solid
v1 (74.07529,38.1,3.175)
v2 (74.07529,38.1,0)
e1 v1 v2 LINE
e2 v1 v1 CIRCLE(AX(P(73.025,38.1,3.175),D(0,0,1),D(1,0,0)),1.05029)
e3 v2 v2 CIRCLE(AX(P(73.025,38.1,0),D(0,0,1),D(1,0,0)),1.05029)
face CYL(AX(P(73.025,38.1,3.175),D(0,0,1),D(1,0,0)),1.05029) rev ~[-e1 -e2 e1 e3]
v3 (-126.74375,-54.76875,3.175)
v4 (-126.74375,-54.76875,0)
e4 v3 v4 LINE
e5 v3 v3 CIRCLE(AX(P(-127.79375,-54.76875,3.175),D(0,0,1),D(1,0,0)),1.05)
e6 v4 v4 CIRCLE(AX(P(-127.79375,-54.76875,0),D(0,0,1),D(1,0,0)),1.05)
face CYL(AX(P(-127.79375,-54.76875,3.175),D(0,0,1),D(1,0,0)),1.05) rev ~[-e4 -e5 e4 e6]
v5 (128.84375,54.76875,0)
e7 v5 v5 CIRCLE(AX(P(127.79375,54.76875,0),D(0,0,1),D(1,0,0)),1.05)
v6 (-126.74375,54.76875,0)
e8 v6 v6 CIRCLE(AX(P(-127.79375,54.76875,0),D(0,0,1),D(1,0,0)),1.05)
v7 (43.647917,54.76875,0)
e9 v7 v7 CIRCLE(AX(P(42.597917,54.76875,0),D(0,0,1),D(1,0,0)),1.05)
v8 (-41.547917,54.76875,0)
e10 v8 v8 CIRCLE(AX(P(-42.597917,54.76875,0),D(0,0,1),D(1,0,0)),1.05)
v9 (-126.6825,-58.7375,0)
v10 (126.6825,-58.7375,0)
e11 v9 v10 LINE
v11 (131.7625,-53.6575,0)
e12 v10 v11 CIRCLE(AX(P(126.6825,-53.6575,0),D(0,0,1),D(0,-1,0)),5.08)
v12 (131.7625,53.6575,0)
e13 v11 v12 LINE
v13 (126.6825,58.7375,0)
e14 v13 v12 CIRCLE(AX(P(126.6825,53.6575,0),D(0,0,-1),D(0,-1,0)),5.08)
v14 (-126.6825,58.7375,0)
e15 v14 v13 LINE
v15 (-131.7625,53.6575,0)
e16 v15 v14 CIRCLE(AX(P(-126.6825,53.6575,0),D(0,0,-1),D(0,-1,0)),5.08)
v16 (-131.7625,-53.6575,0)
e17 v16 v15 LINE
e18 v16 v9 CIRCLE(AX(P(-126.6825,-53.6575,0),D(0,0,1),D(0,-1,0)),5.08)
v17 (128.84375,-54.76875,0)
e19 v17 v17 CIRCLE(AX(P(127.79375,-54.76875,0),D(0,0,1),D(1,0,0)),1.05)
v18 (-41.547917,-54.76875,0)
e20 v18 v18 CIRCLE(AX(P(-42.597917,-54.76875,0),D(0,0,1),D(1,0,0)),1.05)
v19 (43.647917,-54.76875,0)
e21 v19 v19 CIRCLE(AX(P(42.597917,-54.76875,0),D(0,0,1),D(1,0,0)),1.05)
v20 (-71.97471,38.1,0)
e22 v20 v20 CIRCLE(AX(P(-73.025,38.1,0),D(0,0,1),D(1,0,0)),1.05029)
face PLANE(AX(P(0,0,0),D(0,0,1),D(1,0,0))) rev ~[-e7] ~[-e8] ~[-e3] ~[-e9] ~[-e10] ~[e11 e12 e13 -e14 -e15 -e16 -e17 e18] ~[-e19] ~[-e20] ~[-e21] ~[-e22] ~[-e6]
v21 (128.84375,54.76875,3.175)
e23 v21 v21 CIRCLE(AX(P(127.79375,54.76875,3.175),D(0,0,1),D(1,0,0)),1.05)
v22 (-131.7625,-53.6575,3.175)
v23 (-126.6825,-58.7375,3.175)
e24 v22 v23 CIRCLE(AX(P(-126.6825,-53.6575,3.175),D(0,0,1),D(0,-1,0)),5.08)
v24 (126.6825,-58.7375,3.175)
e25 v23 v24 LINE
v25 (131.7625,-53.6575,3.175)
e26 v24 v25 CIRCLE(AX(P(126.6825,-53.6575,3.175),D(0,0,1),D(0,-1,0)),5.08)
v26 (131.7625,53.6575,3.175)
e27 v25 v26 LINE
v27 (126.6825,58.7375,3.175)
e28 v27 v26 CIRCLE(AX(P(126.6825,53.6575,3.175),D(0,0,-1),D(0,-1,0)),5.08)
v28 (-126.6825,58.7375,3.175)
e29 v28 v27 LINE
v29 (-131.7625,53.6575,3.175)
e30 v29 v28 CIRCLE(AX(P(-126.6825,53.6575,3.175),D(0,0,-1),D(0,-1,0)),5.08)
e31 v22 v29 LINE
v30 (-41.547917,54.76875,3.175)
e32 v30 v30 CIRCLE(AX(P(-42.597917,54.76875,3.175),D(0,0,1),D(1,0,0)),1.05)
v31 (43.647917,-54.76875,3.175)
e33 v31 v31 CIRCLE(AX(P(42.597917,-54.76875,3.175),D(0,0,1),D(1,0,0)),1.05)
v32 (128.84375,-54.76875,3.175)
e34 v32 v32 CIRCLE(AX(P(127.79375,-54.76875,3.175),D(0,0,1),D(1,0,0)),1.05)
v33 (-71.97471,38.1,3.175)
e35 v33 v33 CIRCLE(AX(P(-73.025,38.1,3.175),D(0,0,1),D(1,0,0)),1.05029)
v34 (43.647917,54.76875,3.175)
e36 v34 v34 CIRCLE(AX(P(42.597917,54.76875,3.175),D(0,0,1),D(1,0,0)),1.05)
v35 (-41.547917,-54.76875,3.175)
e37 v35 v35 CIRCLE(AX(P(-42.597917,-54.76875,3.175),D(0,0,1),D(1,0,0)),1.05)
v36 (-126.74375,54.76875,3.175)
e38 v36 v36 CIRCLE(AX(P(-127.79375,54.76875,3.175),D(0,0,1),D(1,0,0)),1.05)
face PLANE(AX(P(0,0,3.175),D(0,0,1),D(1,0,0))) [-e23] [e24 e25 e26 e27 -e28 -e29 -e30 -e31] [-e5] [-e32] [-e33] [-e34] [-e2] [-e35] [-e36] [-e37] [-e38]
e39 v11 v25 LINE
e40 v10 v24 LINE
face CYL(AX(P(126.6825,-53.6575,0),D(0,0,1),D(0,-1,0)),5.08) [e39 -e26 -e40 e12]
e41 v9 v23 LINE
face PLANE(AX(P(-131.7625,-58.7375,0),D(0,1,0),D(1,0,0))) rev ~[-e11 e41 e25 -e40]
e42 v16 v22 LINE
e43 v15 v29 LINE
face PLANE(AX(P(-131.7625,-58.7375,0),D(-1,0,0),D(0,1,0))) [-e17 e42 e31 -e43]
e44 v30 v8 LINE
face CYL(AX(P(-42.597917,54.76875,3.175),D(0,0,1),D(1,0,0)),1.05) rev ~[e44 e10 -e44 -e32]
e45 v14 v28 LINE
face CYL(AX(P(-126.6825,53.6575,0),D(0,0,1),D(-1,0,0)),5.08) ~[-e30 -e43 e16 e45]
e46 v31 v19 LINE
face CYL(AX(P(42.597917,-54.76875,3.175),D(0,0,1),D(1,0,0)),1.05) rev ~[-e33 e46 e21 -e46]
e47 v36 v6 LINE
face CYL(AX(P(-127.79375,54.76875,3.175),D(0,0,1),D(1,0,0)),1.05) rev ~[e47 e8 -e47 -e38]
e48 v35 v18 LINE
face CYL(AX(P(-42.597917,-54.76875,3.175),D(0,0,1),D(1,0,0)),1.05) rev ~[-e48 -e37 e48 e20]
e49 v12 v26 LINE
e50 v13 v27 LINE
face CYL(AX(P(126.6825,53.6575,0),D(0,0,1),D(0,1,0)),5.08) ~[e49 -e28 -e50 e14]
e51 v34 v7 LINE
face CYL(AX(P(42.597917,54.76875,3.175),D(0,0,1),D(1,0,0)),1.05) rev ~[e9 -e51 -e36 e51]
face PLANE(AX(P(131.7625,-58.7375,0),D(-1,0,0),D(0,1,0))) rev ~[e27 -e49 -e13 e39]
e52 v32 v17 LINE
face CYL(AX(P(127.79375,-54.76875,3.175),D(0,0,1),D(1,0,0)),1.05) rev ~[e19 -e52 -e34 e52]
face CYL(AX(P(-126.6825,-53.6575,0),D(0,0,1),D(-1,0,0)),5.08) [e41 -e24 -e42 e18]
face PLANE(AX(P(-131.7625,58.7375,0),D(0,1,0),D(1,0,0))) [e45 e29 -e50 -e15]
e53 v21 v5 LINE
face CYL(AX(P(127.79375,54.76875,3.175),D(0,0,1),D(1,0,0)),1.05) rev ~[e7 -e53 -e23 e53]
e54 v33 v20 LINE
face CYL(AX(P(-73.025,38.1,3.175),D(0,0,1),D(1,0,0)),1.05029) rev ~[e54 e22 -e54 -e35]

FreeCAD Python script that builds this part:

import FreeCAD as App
import Part
import Sketcher
from FreeCAD import Vector
Q = App.Units.Quantity


def edges_at(feature, points):
    """Names of the edges that pass closest to the given points."""
    edges = feature.Shape.Edges
    near = lambda p: min(range(len(edges)), key=lambda i: edges[i].distToShape(Part.Vertex(*p))[0])
    return sorted({f"Edge{near(p) + 1}" for p in points})


def add_polygon(sketch, points):
    """Adds a closed chain of lines whose ends are joined by coincident constraints."""
    first, n = sketch.GeometryCount, len(points)
    for a, b in zip(points, points[1:] + points[:1]):
        sketch.addGeometry(Part.LineSegment(App.Vector(*a, 0), App.Vector(*b, 0)), False)
    for i in range(n):
        sketch.addConstraint(Sketcher.Constraint("Coincident", first + i, 2, first + (i + 1) % n, 1))

doc = App.newDocument("Part")
body = doc.addObject("PartDesign::Body", "Body")

# Sketch on XY plane
sketch1 = doc.addObject("Sketcher::SketchObject", "Sketch")
body.addObject(sketch1)
sketch1.AttachmentSupport = (doc.XY_Plane, [""])
sketch1.MapMode = "FlatFace"
add_polygon(sketch1, [(-131.7625, 58.7375), (-131.7625, -58.7375), (131.7625, -58.7375), (131.7625, 58.7375)])  # lines 0-3
sketch1.addConstraint([
    Sketcher.Constraint("Vertical", 0),
    Sketcher.Constraint("Horizontal", 1),
    Sketcher.Constraint("Vertical", 2),
    Sketcher.Constraint("Horizontal", 3),
    Sketcher.Constraint("Symmetric", 0, 2, 2, 2, -1, 1),
    Sketcher.Constraint("DistanceX", 1, 1, 1, 2, Q("10.375 in")),
    Sketcher.Constraint("DistanceY", 0, 2, 0, 1, Q("4.625 in")),
])
pad1 = doc.addObject("PartDesign::Pad", "Pad")
body.addObject(pad1)
pad1.Profile = sketch1
pad1.Length = Q("0.125 in")

# Sketch on XY plane
sketch2 = doc.addObject("Sketcher::SketchObject", "Sketch001")
body.addObject(sketch2)
sketch2.AttachmentSupport = (doc.XY_Plane, [""])
sketch2.MapMode = "FlatFace"
sketch2.AttachmentOffset = App.Placement(Vector(0, 0, 0.125 * 25.4), App.Rotation())
sketch2.addGeometry([
    Part.Circle(Vector(-42.597917, 54.76875, 0), Vector(0, 0, 1), 1.05),  # 0
    Part.Circle(Vector(42.597917, 54.76875, 0), Vector(0, 0, 1), 1.05),  # 1
    Part.Circle(Vector(42.597917, -54.76875, 0), Vector(0, 0, 1), 1.05),  # 2
    Part.Circle(Vector(-42.597917, -54.76875, 0), Vector(0, 0, 1), 1.05),  # 3
    Part.Circle(Vector(-127.79375, -54.76875, 0), Vector(0, 0, 1), 1.05),  # 4
    Part.Circle(Vector(-127.79375, 54.76875, 0), Vector(0, 0, 1), 1.05),  # 5
    Part.Circle(Vector(127.79375, 54.76875, 0), Vector(0, 0, 1), 1.05),  # 6
    Part.Circle(Vector(127.79375, -54.76875, 0), Vector(0, 0, 1), 1.05),  # 7
], False)
sketch2.addConstraint([
    Sketcher.Constraint("Equal", 0, 1),
    Sketcher.Constraint("Equal", 1, 2),
    Sketcher.Constraint("Equal", 2, 3),
    Sketcher.Constraint("Equal", 3, 4),
    Sketcher.Constraint("Equal", 4, 5),
    Sketcher.Constraint("Equal", 5, 6),
    Sketcher.Constraint("Equal", 6, 7),
    Sketcher.Constraint("Symmetric", 0, 3, 2, 3, -1, 1),
    Sketcher.Constraint("Symmetric", 1, 3, 3, 3, -1, 1),
    Sketcher.Constraint("Symmetric", 4, 3, 6, 3, -1, 1),
    Sketcher.Constraint("Symmetric", 5, 3, 7, 3, -1, 1),
    Sketcher.Constraint("Symmetric", 0, 3, 1, 3, -2),
    Sketcher.Constraint("Symmetric", 5, 3, 6, 3, -2),
    Sketcher.Constraint("Horizontal", 3, 3, 4, 3),
    Sketcher.Constraint("Diameter", 0, Q("2.1 mm")),
    Sketcher.Constraint("DistanceY", -1, 1, 0, 3, Q("2.15625 in")),
    Sketcher.Constraint("DistanceX", 4, 3, -1, 1, Q("5.03125 in")),
    Sketcher.Constraint("DistanceX", 0, 3, -1, 1, Q("42.597917 mm")),
])
pocket1 = doc.addObject("PartDesign::Pocket", "Pocket")
body.addObject(pocket1)
pocket1.Profile = sketch2
pocket1.Type = "ThroughAll"

# Sketch on XY plane
sketch3 = doc.addObject("Sketcher::SketchObject", "Sketch002")
body.addObject(sketch3)
sketch3.AttachmentSupport = (doc.XY_Plane, [""])
sketch3.MapMode = "FlatFace"
sketch3.AttachmentOffset = App.Placement(Vector(0, 0, 0.125 * 25.4), App.Rotation())
sketch3.addGeometry([
    Part.Circle(Vector(-73.025, 38.1, 0), Vector(0, 0, 1), 1.05029),
    Part.Circle(Vector(73.025, 38.1, 0), Vector(0, 0, 1), 1.05029),
], False)
sketch3.addConstraint([
    Sketcher.Constraint("Equal", 0, 1),
    Sketcher.Constraint("Symmetric", 0, 3, 1, 3, -2),
    Sketcher.Constraint("Diameter", 0, Q("0.0827 in")),
    Sketcher.Constraint("DistanceY", -1, 1, 0, 3, Q("1.5 in")),
    Sketcher.Constraint("DistanceX", 0, 3, 1, 3, Q("5.75 in")),
])
pocket2 = doc.addObject("PartDesign::Pocket", "Pocket001")
body.addObject(pocket2)
pocket2.Profile = sketch3
pocket2.Type = "ThroughAll"
doc.recompute()

fillet = doc.addObject("PartDesign::Fillet", "Fillet")
body.addObject(fillet)
fillet.Base = (pocket2, edges_at(pocket2, [
    (-131.762, 58.737, 1.587),
    (-131.762, -58.737, 1.587),
    (131.762, 58.737, 1.587),
    (131.762, -58.737, 1.587),
]))
fillet.Radius = Q("0.2 in")

doc.recompute()
